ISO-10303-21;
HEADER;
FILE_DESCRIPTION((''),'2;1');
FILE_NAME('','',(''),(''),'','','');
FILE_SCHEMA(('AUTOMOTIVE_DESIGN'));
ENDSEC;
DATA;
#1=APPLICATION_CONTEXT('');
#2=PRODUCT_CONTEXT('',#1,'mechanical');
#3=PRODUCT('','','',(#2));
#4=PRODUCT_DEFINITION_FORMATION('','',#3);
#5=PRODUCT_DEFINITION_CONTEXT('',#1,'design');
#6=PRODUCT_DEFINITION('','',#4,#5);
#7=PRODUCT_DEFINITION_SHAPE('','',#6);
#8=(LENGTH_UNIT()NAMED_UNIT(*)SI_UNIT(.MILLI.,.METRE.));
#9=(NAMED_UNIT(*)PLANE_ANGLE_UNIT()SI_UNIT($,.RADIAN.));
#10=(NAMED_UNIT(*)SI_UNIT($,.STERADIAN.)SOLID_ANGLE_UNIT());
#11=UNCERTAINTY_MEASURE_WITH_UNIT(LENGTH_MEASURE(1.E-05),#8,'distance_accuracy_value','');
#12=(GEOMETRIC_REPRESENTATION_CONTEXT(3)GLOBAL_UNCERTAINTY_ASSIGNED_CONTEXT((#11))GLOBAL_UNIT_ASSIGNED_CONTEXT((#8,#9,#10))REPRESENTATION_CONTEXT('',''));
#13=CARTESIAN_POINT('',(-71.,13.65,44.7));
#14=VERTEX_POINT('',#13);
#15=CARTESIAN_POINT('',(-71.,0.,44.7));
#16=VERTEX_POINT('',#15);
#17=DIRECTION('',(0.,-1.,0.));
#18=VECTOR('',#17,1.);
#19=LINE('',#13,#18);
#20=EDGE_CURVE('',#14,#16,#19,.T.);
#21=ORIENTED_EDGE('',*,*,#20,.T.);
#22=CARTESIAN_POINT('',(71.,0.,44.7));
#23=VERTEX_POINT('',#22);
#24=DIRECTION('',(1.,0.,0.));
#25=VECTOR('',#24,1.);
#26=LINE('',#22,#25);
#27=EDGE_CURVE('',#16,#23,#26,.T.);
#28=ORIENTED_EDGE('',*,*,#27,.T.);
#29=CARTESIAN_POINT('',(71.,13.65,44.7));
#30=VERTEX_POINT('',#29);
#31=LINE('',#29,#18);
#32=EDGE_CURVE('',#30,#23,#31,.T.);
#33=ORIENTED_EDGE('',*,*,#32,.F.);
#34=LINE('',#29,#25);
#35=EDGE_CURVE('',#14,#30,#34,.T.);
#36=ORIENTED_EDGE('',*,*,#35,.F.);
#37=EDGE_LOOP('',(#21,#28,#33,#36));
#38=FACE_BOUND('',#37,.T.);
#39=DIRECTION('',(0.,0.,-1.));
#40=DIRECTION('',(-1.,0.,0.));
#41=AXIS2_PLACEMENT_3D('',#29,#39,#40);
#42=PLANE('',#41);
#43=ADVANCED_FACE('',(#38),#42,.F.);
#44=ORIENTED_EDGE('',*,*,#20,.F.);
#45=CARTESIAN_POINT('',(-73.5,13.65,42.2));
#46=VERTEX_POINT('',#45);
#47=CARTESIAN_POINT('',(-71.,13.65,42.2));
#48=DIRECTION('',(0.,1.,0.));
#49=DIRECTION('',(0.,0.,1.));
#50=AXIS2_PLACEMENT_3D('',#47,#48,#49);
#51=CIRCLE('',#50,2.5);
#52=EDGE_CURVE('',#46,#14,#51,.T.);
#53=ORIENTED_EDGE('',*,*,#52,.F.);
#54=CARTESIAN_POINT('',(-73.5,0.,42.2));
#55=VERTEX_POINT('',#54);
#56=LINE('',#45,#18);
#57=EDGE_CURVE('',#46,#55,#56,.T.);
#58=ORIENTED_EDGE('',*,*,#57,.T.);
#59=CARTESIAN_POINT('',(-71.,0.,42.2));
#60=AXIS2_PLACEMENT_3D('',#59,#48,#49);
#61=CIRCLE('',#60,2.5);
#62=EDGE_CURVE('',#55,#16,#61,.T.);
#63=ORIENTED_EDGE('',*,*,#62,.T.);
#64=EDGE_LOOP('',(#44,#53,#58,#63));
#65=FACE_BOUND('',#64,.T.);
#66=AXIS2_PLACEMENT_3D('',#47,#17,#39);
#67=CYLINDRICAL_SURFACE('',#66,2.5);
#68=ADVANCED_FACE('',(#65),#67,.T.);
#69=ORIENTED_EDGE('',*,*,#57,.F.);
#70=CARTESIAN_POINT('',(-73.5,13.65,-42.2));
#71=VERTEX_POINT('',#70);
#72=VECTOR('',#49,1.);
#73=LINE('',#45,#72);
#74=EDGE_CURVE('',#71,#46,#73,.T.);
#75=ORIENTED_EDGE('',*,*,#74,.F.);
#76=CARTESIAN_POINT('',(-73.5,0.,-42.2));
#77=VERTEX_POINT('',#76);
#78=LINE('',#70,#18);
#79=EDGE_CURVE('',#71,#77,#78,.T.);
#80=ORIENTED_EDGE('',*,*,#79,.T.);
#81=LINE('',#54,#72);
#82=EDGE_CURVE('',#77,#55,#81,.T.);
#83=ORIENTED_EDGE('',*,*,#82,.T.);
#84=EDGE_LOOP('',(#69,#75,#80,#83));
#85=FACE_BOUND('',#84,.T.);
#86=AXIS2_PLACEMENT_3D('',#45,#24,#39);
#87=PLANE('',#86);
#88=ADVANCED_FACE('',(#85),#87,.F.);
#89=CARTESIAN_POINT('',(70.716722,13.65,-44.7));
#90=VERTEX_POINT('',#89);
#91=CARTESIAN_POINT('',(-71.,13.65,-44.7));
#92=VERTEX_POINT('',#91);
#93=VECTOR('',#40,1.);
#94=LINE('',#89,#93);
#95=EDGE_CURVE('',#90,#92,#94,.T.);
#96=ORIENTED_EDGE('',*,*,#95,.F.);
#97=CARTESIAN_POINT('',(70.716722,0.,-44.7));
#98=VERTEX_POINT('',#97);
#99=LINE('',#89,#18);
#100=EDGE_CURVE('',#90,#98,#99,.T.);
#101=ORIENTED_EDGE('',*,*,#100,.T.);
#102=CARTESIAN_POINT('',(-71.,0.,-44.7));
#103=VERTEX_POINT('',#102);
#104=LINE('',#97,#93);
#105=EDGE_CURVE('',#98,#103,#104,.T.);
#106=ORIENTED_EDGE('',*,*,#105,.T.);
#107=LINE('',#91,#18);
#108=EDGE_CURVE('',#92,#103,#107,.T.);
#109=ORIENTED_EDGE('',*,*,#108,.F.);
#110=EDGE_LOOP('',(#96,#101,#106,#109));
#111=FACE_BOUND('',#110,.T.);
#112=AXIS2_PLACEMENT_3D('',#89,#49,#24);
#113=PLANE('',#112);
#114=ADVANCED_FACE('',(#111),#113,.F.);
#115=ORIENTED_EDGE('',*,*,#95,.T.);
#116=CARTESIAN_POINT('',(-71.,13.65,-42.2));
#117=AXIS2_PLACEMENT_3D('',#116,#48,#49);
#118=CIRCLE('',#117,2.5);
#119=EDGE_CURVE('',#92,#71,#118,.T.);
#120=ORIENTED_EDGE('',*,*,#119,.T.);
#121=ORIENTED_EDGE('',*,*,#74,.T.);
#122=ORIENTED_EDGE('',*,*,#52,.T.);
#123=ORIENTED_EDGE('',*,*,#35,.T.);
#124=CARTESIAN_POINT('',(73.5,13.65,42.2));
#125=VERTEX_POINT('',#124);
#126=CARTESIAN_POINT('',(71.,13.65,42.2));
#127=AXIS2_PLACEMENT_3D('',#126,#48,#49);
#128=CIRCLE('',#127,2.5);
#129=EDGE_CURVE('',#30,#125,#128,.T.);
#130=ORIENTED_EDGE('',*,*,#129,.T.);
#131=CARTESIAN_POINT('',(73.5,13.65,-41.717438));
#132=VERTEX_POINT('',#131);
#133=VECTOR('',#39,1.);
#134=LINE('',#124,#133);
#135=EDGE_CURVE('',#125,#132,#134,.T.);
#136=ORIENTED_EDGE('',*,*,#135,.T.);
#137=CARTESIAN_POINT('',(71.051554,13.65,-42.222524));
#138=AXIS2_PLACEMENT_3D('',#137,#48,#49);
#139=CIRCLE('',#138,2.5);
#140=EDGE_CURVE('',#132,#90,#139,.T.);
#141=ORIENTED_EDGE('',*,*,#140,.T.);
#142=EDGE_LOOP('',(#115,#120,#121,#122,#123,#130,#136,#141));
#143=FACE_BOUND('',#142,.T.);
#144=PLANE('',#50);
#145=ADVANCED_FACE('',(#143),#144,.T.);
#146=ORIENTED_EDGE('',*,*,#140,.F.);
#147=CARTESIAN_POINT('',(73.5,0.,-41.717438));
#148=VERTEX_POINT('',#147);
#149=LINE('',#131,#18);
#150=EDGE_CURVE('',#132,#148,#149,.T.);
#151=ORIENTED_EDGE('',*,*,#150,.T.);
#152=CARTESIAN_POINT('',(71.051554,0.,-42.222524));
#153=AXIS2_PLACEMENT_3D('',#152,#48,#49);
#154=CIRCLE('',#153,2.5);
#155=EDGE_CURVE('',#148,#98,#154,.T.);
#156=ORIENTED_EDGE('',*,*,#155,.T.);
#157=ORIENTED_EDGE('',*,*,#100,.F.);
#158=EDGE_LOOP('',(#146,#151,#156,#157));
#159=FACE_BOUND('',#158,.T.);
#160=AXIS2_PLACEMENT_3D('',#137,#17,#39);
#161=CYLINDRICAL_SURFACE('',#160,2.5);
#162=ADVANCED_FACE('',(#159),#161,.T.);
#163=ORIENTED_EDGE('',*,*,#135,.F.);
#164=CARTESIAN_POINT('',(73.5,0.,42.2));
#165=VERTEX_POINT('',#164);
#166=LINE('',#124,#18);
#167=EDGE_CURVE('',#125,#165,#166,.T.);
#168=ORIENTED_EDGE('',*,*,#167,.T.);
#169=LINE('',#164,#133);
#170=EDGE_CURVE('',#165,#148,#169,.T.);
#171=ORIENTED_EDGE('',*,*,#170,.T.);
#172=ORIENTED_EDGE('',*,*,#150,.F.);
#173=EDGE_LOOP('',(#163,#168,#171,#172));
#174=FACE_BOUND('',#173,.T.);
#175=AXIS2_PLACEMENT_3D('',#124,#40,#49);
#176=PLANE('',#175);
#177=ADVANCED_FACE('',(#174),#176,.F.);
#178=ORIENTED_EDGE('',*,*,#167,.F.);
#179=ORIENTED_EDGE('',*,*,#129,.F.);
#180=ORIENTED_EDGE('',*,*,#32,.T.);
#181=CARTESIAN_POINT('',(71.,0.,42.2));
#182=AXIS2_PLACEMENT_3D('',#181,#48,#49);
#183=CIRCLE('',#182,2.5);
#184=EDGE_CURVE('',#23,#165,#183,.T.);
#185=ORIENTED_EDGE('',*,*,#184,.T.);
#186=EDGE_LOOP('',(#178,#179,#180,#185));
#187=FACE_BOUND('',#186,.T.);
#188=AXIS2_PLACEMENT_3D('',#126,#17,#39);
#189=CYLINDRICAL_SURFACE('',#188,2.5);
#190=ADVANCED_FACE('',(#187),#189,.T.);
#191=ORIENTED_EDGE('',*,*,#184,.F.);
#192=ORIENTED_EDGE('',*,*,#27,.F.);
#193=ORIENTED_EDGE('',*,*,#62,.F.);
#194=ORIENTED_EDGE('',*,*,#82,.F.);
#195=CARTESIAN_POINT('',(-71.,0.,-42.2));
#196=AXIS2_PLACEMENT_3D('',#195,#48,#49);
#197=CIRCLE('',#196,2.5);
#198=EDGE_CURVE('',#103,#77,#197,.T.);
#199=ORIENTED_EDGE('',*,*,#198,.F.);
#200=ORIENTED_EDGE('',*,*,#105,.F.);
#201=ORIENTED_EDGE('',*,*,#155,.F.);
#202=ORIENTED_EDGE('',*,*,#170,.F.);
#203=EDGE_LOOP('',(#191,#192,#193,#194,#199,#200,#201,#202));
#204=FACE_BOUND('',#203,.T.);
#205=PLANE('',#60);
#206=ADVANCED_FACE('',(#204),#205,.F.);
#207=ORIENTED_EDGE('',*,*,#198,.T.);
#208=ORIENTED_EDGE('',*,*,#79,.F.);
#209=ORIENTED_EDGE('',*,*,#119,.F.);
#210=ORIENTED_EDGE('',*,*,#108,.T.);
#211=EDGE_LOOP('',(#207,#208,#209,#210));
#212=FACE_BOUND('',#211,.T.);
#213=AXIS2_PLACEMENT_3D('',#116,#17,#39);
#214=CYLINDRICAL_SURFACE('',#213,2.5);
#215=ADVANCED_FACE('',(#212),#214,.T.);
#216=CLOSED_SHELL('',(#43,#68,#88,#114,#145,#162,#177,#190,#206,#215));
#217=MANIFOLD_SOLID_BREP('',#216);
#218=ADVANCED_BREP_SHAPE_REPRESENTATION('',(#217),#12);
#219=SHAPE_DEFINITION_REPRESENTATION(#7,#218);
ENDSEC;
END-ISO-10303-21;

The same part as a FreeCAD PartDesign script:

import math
import FreeCAD as App
import Part
import Sketcher

V = App.Vector

doc = App.newDocument("Part")
body = doc.addObject("PartDesign::Body", "Body")

# Sketch on XZ plane
sketch1 = body.newObject("Sketcher::SketchObject", "Sketch")
sketch1.AttachmentSupport = (doc.getObject("XZ_Plane"), [""])
sketch1.MapMode = "FlatFace"
sketch1.addGeometry(Part.LineSegment(V(-71, 44.7, 0), V(71, 44.7, 0)), False)
sketch1.addGeometry(Part.ArcOfCircle(Part.Circle(V(71, 42.2, 0), V(0, 0, 1), 2.5), math.radians(0), math.radians(90)), False)
sketch1.addGeometry(Part.LineSegment(V(73.5, 42.2, 0), V(73.5, -41.717438, 0)), False)
sketch1.addGeometry(Part.ArcOfCircle(Part.Circle(V(71.051554, -42.222524, 0), V(0, 0, 1), 2.5), math.radians(-97.696921), math.radians(11.65596)), False)
sketch1.addGeometry(Part.LineSegment(V(70.716722, -44.7, 0), V(-71, -44.7, 0)), False)
sketch1.addGeometry(Part.ArcOfCircle(Part.Circle(V(-71, -42.2, 0), V(0, 0, 1), 2.5), math.radians(180), math.radians(270)), False)
sketch1.addGeometry(Part.LineSegment(V(-73.5, -42.2, 0), V(-73.5, 42.2, 0)), False)
sketch1.addGeometry(Part.ArcOfCircle(Part.Circle(V(-71, 42.2, 0), V(0, 0, 1), 2.5), math.radians(90), math.radians(180)), False)
sketch1.addConstraint(Sketcher.Constraint("Tangent", 0, 2, 1, 2))
sketch1.addConstraint(Sketcher.Constraint("Tangent", 1, 1, 2, 1))
sketch1.addConstraint(Sketcher.Constraint("Coincident", 2, 2, 3, 2))
sketch1.addConstraint(Sketcher.Constraint("Coincident", 3, 1, 4, 1))
sketch1.addConstraint(Sketcher.Constraint("Tangent", 4, 2, 5, 2))
sketch1.addConstraint(Sketcher.Constraint("Tangent", 5, 1, 6, 1))
sketch1.addConstraint(Sketcher.Constraint("Tangent", 6, 2, 7, 2))
sketch1.addConstraint(Sketcher.Constraint("Tangent", 7, 1, 0, 1))
sketch1.addConstraint(Sketcher.Constraint("Horizontal", 0))
sketch1.addConstraint(Sketcher.Constraint("Vertical", 2))
sketch1.addConstraint(Sketcher.Constraint("Horizontal", 4))
sketch1.addConstraint(Sketcher.Constraint("Vertical", 6))
sketch1.addConstraint(Sketcher.Constraint("Equal", 1, 3))
sketch1.addConstraint(Sketcher.Constraint("Equal", 3, 5))
sketch1.addConstraint(Sketcher.Constraint("Equal", 5, 7))
sketch1.addConstraint(Sketcher.Constraint("Symmetric", 1, 3, 5, 3, -1, 1))
sketch1.addConstraint(Sketcher.Constraint("Radius", 1, 2.5))
sketch1.addConstraint(Sketcher.Constraint("DistanceX", 0, 1, 0, 2, 142.0))
sketch1.addConstraint(Sketcher.Constraint("DistanceY", 6, 1, 6, 2, 84.4))
sketch1.addConstraint(Sketcher.Constraint("DistanceX", 4, 2, 4, 1, 141.716722))
sketch1.addConstraint(Sketcher.Constraint("DistanceY", 2, 2, 2, 1, 83.917438))
pad1 = body.newObject("PartDesign::Pad", "Pad")
pad1.Profile = sketch1
pad1.Length = 13.65
pad1.Reversed = True

doc.recompute()
